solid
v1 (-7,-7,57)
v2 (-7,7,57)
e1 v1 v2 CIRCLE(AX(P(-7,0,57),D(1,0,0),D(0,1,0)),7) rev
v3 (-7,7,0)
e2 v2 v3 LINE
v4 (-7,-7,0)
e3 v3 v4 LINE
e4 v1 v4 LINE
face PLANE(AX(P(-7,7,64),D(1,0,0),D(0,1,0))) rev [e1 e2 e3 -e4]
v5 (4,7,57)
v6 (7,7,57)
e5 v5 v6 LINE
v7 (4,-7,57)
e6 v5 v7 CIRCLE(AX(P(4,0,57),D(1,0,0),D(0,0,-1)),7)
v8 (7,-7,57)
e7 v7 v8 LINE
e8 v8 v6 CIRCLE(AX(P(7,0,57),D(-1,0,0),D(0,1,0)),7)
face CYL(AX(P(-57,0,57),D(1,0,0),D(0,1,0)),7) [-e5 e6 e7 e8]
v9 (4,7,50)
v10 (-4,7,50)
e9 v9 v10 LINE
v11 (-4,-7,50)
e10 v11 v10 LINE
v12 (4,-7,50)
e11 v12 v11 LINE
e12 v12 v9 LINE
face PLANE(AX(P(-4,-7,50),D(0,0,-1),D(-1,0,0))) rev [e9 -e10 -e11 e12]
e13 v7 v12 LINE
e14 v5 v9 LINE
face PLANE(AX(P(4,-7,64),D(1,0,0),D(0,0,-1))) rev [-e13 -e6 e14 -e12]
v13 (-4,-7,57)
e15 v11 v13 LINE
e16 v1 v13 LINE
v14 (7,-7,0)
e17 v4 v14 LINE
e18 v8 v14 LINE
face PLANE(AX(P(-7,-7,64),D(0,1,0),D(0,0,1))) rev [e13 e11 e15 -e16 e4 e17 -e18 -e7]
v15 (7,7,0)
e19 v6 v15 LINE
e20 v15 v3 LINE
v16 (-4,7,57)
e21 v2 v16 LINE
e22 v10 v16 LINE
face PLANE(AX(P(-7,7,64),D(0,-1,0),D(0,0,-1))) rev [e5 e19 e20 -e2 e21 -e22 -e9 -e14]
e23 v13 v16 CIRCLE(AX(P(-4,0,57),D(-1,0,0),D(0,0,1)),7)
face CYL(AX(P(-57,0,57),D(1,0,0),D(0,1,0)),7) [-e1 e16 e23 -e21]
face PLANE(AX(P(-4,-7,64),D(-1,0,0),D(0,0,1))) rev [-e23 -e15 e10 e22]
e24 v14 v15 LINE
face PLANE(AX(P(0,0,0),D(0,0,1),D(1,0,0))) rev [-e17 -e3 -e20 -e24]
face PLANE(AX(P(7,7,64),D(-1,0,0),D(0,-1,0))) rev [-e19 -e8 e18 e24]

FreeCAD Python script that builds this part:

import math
import FreeCAD as App
import Part
import Sketcher
from FreeCAD import Vector


def add_polygon(sketch, points):
    """Adds a closed chain of lines whose ends are joined by coincident constraints."""
    first, n = sketch.GeometryCount, len(points)
    for a, b in zip(points, points[1:] + points[:1]):
        sketch.addGeometry(Part.LineSegment(App.Vector(*a, 0), App.Vector(*b, 0)), False)
    for i in range(n):
        sketch.addConstraint(Sketcher.Constraint("Coincident", first + i, 2, first + (i + 1) % n, 1))

doc = App.newDocument("Part")
params = doc.addObject("Spreadsheet::Sheet", "Params")
for row, (alias, value) in enumerate([
    ("sketch1_width", "14 mm"),
    ("pad1_length", "64 mm"),
    ("sketch2_radius", "7 mm"),
    ("pocket1_length", "64 mm"),
    ("sketch3_width", "8 mm"),
    ("sketch3_height", "14 mm"),
], start=1):
    params.set(f"A{row}", alias)
    params.set(f"B{row}", "=" + value)
    params.setAlias(f"B{row}", alias)

body = doc.addObject("PartDesign::Body", "Body")

sketch1 = doc.addObject("Sketcher::SketchObject", "Sketch")
body.addObject(sketch1)
sketch1.AttachmentSupport = (doc.XY_Plane, [""])
sketch1.MapMode = "FlatFace"
add_polygon(sketch1, [(-7, 7), (-7, -7), (7, -7), (7, 7)])
sketch1.addConstraint([
    Sketcher.Constraint("Vertical", 0),
    Sketcher.Constraint("Horizontal", 1),
    Sketcher.Constraint("Vertical", 2),
    Sketcher.Constraint("Horizontal", 3),
    Sketcher.Constraint("Symmetric", 0, 2, 2, 2, -1, 1),
    Sketcher.Constraint("Equal", 3, 0),
    Sketcher.Constraint("DistanceX", 1, 1, 1, 2, 14.0),
])
sketch1.setExpression("Constraints[10]", "Params.sketch1_width")
pad1 = doc.addObject("PartDesign::Pad", "Pad")
body.addObject(pad1)
pad1.Profile = sketch1
pad1.setExpression("Length", "Params.pad1_length")

sketch2 = doc.addObject("Sketcher::SketchObject", "Sketch001")
body.addObject(sketch2)
sketch2.AttachmentSupport = (doc.YZ_Plane, [""])
sketch2.MapMode = "FlatFace"
sketch2.AttachmentOffset = App.Placement(Vector(0, 0, 7), App.Rotation())
sketch2.addGeometry([
    Part.LineSegment(Vector(7, 57, 0), Vector(7, 69, 0)),
    Part.LineSegment(Vector(7, 69, 0), Vector(-7, 69, 0)),
    Part.LineSegment(Vector(-7, 69, 0), Vector(-7, 57, 0)),
    Part.ArcOfCircle(Part.Circle(Vector(0, 57, 0), Vector(0, 0, 1), 7), math.radians(0), math.radians(180)),
], False)
sketch2.addConstraint([
    Sketcher.Constraint("Coincident", 0, 2, 1, 1),
    Sketcher.Constraint("Coincident", 1, 2, 2, 1),
    Sketcher.Constraint("Tangent", 2, 2, 3, 2),
    Sketcher.Constraint("Tangent", 3, 1, 0, 1),
    Sketcher.Constraint("Vertical", 0),
    Sketcher.Constraint("Horizontal", 1),
    Sketcher.Constraint("Vertical", 2),
    Sketcher.Constraint("PointOnObject", 3, 3, -2),
    Sketcher.Constraint("Radius", 3, 7.0),
    Sketcher.Constraint("DistanceY", -1, 1, 3, 3, 57.0),
    Sketcher.Constraint("DistanceY", 0, 1, 0, 2, 11.546767),
])
sketch2.setExpression("Constraints[8]", "Params.sketch2_radius")
pocket1 = doc.addObject("PartDesign::Pocket", "Pocket")
body.addObject(pocket1)
pocket1.Profile = sketch2
pocket1.setExpression("Length", "Params.pocket1_length")

sketch3 = doc.addObject("Sketcher::SketchObject", "Sketch002")
body.addObject(sketch3)
sketch3.AttachmentSupport = (doc.XZ_Plane, [""])
sketch3.MapMode = "FlatFace"
sketch3.AttachmentOffset = App.Placement(Vector(0, 0, -7), App.Rotation())
add_polygon(sketch3, [(-4, 50), (-4, 64), (4, 64), (4, 50)])
sketch3.addConstraint([
    Sketcher.Constraint("Vertical", 0),
    Sketcher.Constraint("Horizontal", 1),
    Sketcher.Constraint("Vertical", 2),
    Sketcher.Constraint("Horizontal", 3),
    Sketcher.Constraint("DistanceX", 1, 1, 1, 2, 8.0),
    Sketcher.Constraint("DistanceY", 0, 1, 0, 2, 14.0),
    Sketcher.Constraint("DistanceX", 0, 2, -1, 1, 4.0),
    Sketcher.Constraint("DistanceY", -1, 1, 0, 2, 64.0),
])
sketch3.setExpression("Constraints[8]", "Params.sketch3_width")
sketch3.setExpression("Constraints[9]", "Params.sketch3_height")
pocket2 = doc.addObject("PartDesign::Pocket", "Pocket001")
body.addObject(pocket2)
pocket2.Profile = sketch3
pocket2.Type = "ThroughAll"
pocket2.Reversed = True

doc.recompute()
